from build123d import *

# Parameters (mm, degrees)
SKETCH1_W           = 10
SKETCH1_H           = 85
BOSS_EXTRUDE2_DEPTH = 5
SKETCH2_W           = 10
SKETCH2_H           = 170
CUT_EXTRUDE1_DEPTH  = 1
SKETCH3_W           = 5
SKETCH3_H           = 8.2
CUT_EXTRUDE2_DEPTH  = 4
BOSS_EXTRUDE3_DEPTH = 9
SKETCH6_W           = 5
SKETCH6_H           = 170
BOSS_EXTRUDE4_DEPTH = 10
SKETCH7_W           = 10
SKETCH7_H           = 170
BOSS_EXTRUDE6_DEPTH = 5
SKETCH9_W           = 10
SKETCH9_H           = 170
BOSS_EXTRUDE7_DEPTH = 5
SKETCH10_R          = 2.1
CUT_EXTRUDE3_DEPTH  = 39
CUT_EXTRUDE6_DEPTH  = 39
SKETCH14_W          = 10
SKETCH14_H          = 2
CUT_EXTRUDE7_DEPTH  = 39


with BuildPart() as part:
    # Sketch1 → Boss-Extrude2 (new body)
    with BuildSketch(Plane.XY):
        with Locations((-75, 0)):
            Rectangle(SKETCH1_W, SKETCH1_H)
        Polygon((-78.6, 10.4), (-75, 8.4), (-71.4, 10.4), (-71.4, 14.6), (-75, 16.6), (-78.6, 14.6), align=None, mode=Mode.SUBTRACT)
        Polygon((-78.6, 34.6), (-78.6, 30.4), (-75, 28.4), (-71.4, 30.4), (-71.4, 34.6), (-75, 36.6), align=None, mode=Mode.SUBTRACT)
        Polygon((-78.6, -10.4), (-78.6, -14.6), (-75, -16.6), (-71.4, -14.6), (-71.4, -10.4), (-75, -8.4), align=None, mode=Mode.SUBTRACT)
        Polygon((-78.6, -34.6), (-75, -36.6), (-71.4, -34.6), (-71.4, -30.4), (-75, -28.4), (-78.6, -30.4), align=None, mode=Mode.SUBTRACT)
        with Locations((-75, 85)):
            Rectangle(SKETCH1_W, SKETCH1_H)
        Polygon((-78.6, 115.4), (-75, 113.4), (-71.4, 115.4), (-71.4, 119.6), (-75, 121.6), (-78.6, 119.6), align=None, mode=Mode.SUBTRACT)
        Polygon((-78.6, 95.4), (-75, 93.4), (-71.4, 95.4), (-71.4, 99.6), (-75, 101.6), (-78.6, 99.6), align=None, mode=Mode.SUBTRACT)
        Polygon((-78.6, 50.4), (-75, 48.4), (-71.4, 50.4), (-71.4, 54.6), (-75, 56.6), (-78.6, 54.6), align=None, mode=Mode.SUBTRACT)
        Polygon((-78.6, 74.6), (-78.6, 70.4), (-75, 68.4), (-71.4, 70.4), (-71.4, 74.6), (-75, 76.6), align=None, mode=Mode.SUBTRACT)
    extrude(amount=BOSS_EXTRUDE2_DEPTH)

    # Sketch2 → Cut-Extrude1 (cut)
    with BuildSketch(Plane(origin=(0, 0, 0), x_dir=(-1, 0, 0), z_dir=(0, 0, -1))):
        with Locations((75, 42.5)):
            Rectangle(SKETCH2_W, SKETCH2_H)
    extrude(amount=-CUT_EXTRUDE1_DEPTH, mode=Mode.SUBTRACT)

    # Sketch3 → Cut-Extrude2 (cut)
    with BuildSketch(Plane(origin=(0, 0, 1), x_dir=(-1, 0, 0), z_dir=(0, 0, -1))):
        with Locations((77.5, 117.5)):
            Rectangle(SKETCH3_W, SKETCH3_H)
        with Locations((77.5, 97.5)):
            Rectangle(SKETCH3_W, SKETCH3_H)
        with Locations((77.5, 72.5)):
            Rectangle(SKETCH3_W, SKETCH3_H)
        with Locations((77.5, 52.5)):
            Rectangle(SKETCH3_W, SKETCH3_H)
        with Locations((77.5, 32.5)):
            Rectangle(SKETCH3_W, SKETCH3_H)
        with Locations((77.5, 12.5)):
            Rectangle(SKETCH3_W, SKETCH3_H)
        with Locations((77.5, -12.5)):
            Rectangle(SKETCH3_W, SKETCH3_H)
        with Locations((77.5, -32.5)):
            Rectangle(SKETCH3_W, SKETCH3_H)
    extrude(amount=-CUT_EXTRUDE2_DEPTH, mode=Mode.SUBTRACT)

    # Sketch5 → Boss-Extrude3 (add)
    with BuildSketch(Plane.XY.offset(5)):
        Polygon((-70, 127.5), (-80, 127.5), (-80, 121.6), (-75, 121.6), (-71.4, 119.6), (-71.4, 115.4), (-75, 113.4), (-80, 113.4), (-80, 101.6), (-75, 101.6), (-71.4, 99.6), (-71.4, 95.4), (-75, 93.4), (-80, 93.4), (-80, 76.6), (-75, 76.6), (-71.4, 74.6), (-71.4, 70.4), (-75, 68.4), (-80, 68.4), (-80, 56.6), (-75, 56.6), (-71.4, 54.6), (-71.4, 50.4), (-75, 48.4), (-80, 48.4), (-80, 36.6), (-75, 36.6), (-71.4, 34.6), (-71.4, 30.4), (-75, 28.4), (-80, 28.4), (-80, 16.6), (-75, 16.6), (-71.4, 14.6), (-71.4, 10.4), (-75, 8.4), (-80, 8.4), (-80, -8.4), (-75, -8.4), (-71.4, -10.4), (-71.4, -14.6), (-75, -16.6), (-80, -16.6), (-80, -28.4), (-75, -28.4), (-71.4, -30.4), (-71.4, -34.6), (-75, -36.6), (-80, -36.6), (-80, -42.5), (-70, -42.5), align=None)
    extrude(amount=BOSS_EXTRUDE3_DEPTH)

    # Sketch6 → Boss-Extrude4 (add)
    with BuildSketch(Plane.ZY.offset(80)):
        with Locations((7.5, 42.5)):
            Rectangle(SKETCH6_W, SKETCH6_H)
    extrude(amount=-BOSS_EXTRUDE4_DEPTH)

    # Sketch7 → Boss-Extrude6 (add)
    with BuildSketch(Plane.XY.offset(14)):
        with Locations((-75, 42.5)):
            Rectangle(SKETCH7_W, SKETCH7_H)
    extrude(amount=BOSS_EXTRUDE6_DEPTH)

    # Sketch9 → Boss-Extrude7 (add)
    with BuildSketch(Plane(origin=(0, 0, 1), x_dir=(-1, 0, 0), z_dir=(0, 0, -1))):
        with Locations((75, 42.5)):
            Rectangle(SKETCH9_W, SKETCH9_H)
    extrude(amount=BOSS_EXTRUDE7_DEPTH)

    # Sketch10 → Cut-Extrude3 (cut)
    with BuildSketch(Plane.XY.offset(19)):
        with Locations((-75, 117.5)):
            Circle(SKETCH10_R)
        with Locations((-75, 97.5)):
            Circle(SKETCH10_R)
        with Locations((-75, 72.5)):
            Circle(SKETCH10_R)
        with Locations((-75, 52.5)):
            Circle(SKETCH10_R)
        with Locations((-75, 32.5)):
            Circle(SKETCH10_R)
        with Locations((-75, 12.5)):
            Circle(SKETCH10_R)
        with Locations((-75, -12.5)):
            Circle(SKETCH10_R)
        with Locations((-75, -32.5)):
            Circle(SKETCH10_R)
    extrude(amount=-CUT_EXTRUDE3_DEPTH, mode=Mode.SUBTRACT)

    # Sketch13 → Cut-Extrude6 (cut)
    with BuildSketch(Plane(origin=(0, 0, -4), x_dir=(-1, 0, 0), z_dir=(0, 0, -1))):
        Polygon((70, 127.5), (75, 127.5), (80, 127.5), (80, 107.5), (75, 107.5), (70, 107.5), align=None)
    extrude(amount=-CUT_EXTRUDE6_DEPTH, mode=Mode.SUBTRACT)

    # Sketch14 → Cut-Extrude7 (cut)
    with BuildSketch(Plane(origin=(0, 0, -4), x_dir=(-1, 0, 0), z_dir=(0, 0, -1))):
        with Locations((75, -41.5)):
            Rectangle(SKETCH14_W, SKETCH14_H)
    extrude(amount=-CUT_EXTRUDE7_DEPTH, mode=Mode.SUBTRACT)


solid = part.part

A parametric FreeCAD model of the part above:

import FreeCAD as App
import Part
import Sketcher

doc = App.newDocument("Part")
params = doc.addObject("Spreadsheet::Sheet", "Params")
for row, (alias, value) in enumerate([
    ("sketch1_width", "10 mm"),
    ("sketch1_height", "170 mm"),
    ("sketch1_height2", "4.2 mm"),
    ("pad1_length", "5 mm"),
    ("sketch2_width", "10 mm"),
    ("sketch2_height", "170 mm"),
    ("pocket1_length", "1 mm"),
    ("sketch3_width", "5 mm"),
    ("sketch3_height", "8.2 mm"),
    ("pocket2_length", "4 mm"),
    ("sketch4_width", "10 mm"),
    ("sketch4_width2", "5 mm"),
    ("sketch4_height", "170 mm"),
    ("sketch4_height2", "5.9 mm"),
    ("sketch4_height3", "4.2 mm"),
    ("pad2_length", "9 mm"),
    ("sketch5_width", "170 mm"),
    ("sketch5_height", "5 mm"),
    ("pad3_length", "10 mm"),
    ("sketch6_width", "10 mm"),
    ("sketch6_height", "170 mm"),
    ("pad4_length", "5 mm"),
    ("sketch7_width", "10 mm"),
    ("sketch7_height", "170 mm"),
    ("pad5_length", "5 mm"),
    ("sketch8_diameter", "4.2 mm"),
    ("pocket3_length", "39 mm"),
    ("sketch9_width", "10 mm"),
    ("sketch9_height", "20 mm"),
    ("pocket4_length", "39 mm"),
    ("sketch10_width", "10 mm"),
    ("sketch10_height", "2 mm"),
    ("pocket5_length", "39 mm"),
], start=1):
    params.set(f"A{row}", alias)
    params.set(f"B{row}", "=" + value)
    params.setAlias(f"B{row}", alias)

body = doc.addObject("PartDesign::Body", "Body")

# Sketch on XY plane
sketch1 = body.newObject("Sketcher::SketchObject", "Sketch")
sketch1.AttachmentSupport = (doc.getObject("XY_Plane"), [""])
sketch1.MapMode = "FlatFace"
sketch1.addGeometry([
    Part.LineSegment(App.Vector(-80, -42.5, 0), App.Vector(-70, -42.5, 0)),  # 0
    Part.LineSegment(App.Vector(-70, -42.5, 0), App.Vector(-70, 127.5, 0)),  # 1
    Part.LineSegment(App.Vector(-70, 127.5, 0), App.Vector(-80, 127.5, 0)),  # 2
    Part.LineSegment(App.Vector(-80, 127.5, 0), App.Vector(-80, -42.5, 0)),  # 3
    Part.LineSegment(App.Vector(-75, -36.6, 0), App.Vector(-78.6, -34.6, 0)),  # 4
    Part.LineSegment(App.Vector(-78.6, -34.6, 0), App.Vector(-78.6, -30.4, 0)),  # 5
    Part.LineSegment(App.Vector(-78.6, -30.4, 0), App.Vector(-75, -28.4, 0)),  # 6
    Part.LineSegment(App.Vector(-75, -28.4, 0), App.Vector(-71.4, -30.4, 0)),  # 7
    Part.LineSegment(App.Vector(-71.4, -30.4, 0), App.Vector(-71.4, -34.6, 0)),  # 8
    Part.LineSegment(App.Vector(-71.4, -34.6, 0), App.Vector(-75, -36.6, 0)),  # 9
    Part.LineSegment(App.Vector(-78.6, -14.6, 0), App.Vector(-78.6, -10.4, 0)),  # 10
    Part.LineSegment(App.Vector(-78.6, -10.4, 0), App.Vector(-75, -8.4, 0)),  # 11
    Part.LineSegment(App.Vector(-75, -8.4, 0), App.Vector(-71.4, -10.4, 0)),  # 12
    Part.LineSegment(App.Vector(-71.4, -10.4, 0), App.Vector(-71.4, -14.6, 0)),  # 13
    Part.LineSegment(App.Vector(-71.4, -14.6, 0), App.Vector(-75, -16.6, 0)),  # 14
    Part.LineSegment(App.Vector(-75, -16.6, 0), App.Vector(-78.6, -14.6, 0)),  # 15
    Part.LineSegment(App.Vector(-75, 8.4, 0), App.Vector(-78.6, 10.4, 0)),  # 16
    Part.LineSegment(App.Vector(-78.6, 10.4, 0), App.Vector(-78.6, 14.6, 0)),  # 17
    Part.LineSegment(App.Vector(-78.6, 14.6, 0), App.Vector(-75, 16.6, 0)),  # 18
    Part.LineSegment(App.Vector(-75, 16.6, 0), App.Vector(-71.4, 14.6, 0)),  # 19
    Part.LineSegment(App.Vector(-71.4, 14.6, 0), App.Vector(-71.4, 10.4, 0)),  # 20
    Part.LineSegment(App.Vector(-71.4, 10.4, 0), App.Vector(-75, 8.4, 0)),  # 21
    Part.LineSegment(App.Vector(-78.6, 30.4, 0), App.Vector(-78.6, 34.6, 0)),  # 22
    Part.LineSegment(App.Vector(-78.6, 34.6, 0), App.Vector(-75, 36.6, 0)),  # 23
    Part.LineSegment(App.Vector(-75, 36.6, 0), App.Vector(-71.4, 34.6, 0)),  # 24
    Part.LineSegment(App.Vector(-71.4, 34.6, 0), App.Vector(-71.4, 30.4, 0)),  # 25
    Part.LineSegment(App.Vector(-71.4, 30.4, 0), App.Vector(-75, 28.4, 0)),  # 26
    Part.LineSegment(App.Vector(-75, 28.4, 0), App.Vector(-78.6, 30.4, 0)),  # 27
    Part.LineSegment(App.Vector(-75, 48.4, 0), App.Vector(-78.6, 50.4, 0)),  # 28
    Part.LineSegment(App.Vector(-78.6, 50.4, 0), App.Vector(-78.6, 54.6, 0)),  # 29
    Part.LineSegment(App.Vector(-78.6, 54.6, 0), App.Vector(-75, 56.6, 0)),  # 30
    Part.LineSegment(App.Vector(-75, 56.6, 0), App.Vector(-71.4, 54.6, 0)),  # 31
    Part.LineSegment(App.Vector(-71.4, 54.6, 0), App.Vector(-71.4, 50.4, 0)),  # 32
    Part.LineSegment(App.Vector(-71.4, 50.4, 0), App.Vector(-75, 48.4, 0)),  # 33
    Part.LineSegment(App.Vector(-78.6, 70.4, 0), App.Vector(-78.6, 74.6, 0)),  # 34
    Part.LineSegment(App.Vector(-78.6, 74.6, 0), App.Vector(-75, 76.6, 0)),  # 35
    Part.LineSegment(App.Vector(-75, 76.6, 0), App.Vector(-71.4, 74.6, 0)),  # 36
    Part.LineSegment(App.Vector(-71.4, 74.6, 0), App.Vector(-71.4, 70.4, 0)),  # 37
    Part.LineSegment(App.Vector(-71.4, 70.4, 0), App.Vector(-75, 68.4, 0)),  # 38
    Part.LineSegment(App.Vector(-75, 68.4, 0), App.Vector(-78.6, 70.4, 0)),  # 39
    Part.LineSegment(App.Vector(-75, 93.4, 0), App.Vector(-78.6, 95.4, 0)),  # 40
    Part.LineSegment(App.Vector(-78.6, 95.4, 0), App.Vector(-78.6, 99.6, 0)),  # 41
    Part.LineSegment(App.Vector(-78.6, 99.6, 0), App.Vector(-75, 101.6, 0)),  # 42
    Part.LineSegment(App.Vector(-75, 101.6, 0), App.Vector(-71.4, 99.6, 0)),  # 43
    Part.LineSegment(App.Vector(-71.4, 99.6, 0), App.Vector(-71.4, 95.4, 0)),  # 44
    Part.LineSegment(App.Vector(-71.4, 95.4, 0), App.Vector(-75, 93.4, 0)),  # 45
    Part.LineSegment(App.Vector(-75, 113.4, 0), App.Vector(-78.6, 115.4, 0)),  # 46
    Part.LineSegment(App.Vector(-78.6, 115.4, 0), App.Vector(-78.6, 119.6, 0)),  # 47
    Part.LineSegment(App.Vector(-78.6, 119.6, 0), App.Vector(-75, 121.6, 0)),  # 48
    Part.LineSegment(App.Vector(-75, 121.6, 0), App.Vector(-71.4, 119.6, 0)),  # 49
    Part.LineSegment(App.Vector(-71.4, 119.6, 0), App.Vector(-71.4, 115.4, 0)),  # 50
    Part.LineSegment(App.Vector(-71.4, 115.4, 0), App.Vector(-75, 113.4, 0)),  # 51
], False)
sketch1.addConstraint([
    Sketcher.Constraint("Coincident", 0, 2, 1, 1),
    Sketcher.Constraint("Coincident", 1, 2, 2, 1),
    Sketcher.Constraint("Coincident", 2, 2, 3, 1),
    Sketcher.Constraint("Coincident", 3, 2, 0, 1),
    Sketcher.Constraint("Coincident", 4, 2, 5, 1),
    Sketcher.Constraint("Coincident", 5, 2, 6, 1),
    Sketcher.Constraint("Coincident", 6, 2, 7, 1),
    Sketcher.Constraint("Coincident", 7, 2, 8, 1),
    Sketcher.Constraint("Coincident", 8, 2, 9, 1),
    Sketcher.Constraint("Coincident", 9, 2, 4, 1),
    Sketcher.Constraint("Coincident", 10, 2, 11, 1),
    Sketcher.Constraint("Coincident", 11, 2, 12, 1),
    Sketcher.Constraint("Coincident", 12, 2, 13, 1),
    Sketcher.Constraint("Coincident", 13, 2, 14, 1),
    Sketcher.Constraint("Coincident", 14, 2, 15, 1),
    Sketcher.Constraint("Coincident", 15, 2, 10, 1),
    Sketcher.Constraint("Coincident", 16, 2, 17, 1),
    Sketcher.Constraint("Coincident", 17, 2, 18, 1),
    Sketcher.Constraint("Coincident", 18, 2, 19, 1),
    Sketcher.Constraint("Coincident", 19, 2, 20, 1),
    Sketcher.Constraint("Coincident", 20, 2, 21, 1),
    Sketcher.Constraint("Coincident", 21, 2, 16, 1),
    Sketcher.Constraint("Coincident", 22, 2, 23, 1),
    Sketcher.Constraint("Coincident", 23, 2, 24, 1),
    Sketcher.Constraint("Coincident", 24, 2, 25, 1),
    Sketcher.Constraint("Coincident", 25, 2, 26, 1),
    Sketcher.Constraint("Coincident", 26, 2, 27, 1),
    Sketcher.Constraint("Coincident", 27, 2, 22, 1),
    Sketcher.Constraint("Coincident", 28, 2, 29, 1),
    Sketcher.Constraint("Coincident", 29, 2, 30, 1),
    Sketcher.Constraint("Coincident", 30, 2, 31, 1),
    Sketcher.Constraint("Coincident", 31, 2, 32, 1),
    Sketcher.Constraint("Coincident", 32, 2, 33, 1),
    Sketcher.Constraint("Coincident", 33, 2, 28, 1),
    Sketcher.Constraint("Coincident", 34, 2, 35, 1),
    Sketcher.Constraint("Coincident", 35, 2, 36, 1),
    Sketcher.Constraint("Coincident", 36, 2, 37, 1),
    Sketcher.Constraint("Coincident", 37, 2, 38, 1),
    Sketcher.Constraint("Coincident", 38, 2, 39, 1),
    Sketcher.Constraint("Coincident", 39, 2, 34, 1),
    Sketcher.Constraint("Coincident", 40, 2, 41, 1),
    Sketcher.Constraint("Coincident", 41, 2, 42, 1),
    Sketcher.Constraint("Coincident", 42, 2, 43, 1),
    Sketcher.Constraint("Coincident", 43, 2, 44, 1),
    Sketcher.Constraint("Coincident", 44, 2, 45, 1),
    Sketcher.Constraint("Coincident", 45, 2, 40, 1),
    Sketcher.Constraint("Coincident", 46, 2, 47, 1),
    Sketcher.Constraint("Coincident", 47, 2, 48, 1),
    Sketcher.Constraint("Coincident", 48, 2, 49, 1),
    Sketcher.Constraint("Coincident", 49, 2, 50, 1),
    Sketcher.Constraint("Coincident", 50, 2, 51, 1),
    Sketcher.Constraint("Coincident", 51, 2, 46, 1),
    Sketcher.Constraint("Horizontal", 0),
    Sketcher.Constraint("Vertical", 1),
    Sketcher.Constraint("Horizontal", 2),
    Sketcher.Constraint("Vertical", 3),
    Sketcher.Constraint("Vertical", 5),
    Sketcher.Constraint("Vertical", 8),
    Sketcher.Constraint("Vertical", 10),
    Sketcher.Constraint("Vertical", 13),
    Sketcher.Constraint("Vertical", 17),
    Sketcher.Constraint("Vertical", 20),
    Sketcher.Constraint("Vertical", 22),
    Sketcher.Constraint("Vertical", 25),
    Sketcher.Constraint("Vertical", 29),
    Sketcher.Constraint("Vertical", 32),
    Sketcher.Constraint("Vertical", 34),
    Sketcher.Constraint("Vertical", 37),
    Sketcher.Constraint("Vertical", 41),
    Sketcher.Constraint("Vertical", 44),
    Sketcher.Constraint("Vertical", 47),
    Sketcher.Constraint("Vertical", 50),
    Sketcher.Constraint("Symmetric", 10, 2, 16, 2, -1),
    Sketcher.Constraint("Symmetric", 14, 2, 18, 2, -1),
    Sketcher.Constraint("Symmetric", 13, 2, 19, 2, -1),
    Sketcher.Constraint("Symmetric", 11, 2, 21, 2, -1),
    Sketcher.Constraint("Symmetric", 4, 2, 22, 2, -1),
    Sketcher.Constraint("Symmetric", 9, 2, 23, 2, -1),
    Sketcher.Constraint("Symmetric", 8, 2, 24, 2, -1),
    Sketcher.Constraint("Symmetric", 6, 2, 26, 2, -1),
    Sketcher.Constraint("Parallel", 4, 7),
    Sketcher.Constraint("Parallel", 6, 9),
    Sketcher.Constraint("Parallel", 9, 11),
    Sketcher.Constraint("Parallel", 7, 12),
    Sketcher.Constraint("Parallel", 11, 14),
    Sketcher.Constraint("Parallel", 12, 15),
    Sketcher.Constraint("Parallel", 15, 16),
    Sketcher.Constraint("Parallel", 14, 18),
    Sketcher.Constraint("Parallel", 18, 21),
    Sketcher.Constraint("Parallel", 23, 26),
    Sketcher.Constraint("Parallel", 24, 27),
    Sketcher.Constraint("Parallel", 27, 28),
    Sketcher.Constraint("Parallel", 26, 30),
    Sketcher.Constraint("Parallel", 28, 31),
    Sketcher.Constraint("Parallel", 30, 33),
    Sketcher.Constraint("Parallel", 33, 35),
    Sketcher.Constraint("Parallel", 31, 36),
    Sketcher.Constraint("Parallel", 35, 38),
    Sketcher.Constraint("Parallel", 36, 39),
    Sketcher.Constraint("Parallel", 39, 40),
    Sketcher.Constraint("Parallel", 38, 42),
    Sketcher.Constraint("Parallel", 40, 43),
    Sketcher.Constraint("Parallel", 42, 45),
    Sketcher.Constraint("Parallel", 43, 46),
    Sketcher.Constraint("Parallel", 45, 48),
    Sketcher.Constraint("Parallel", 46, 49),
    Sketcher.Constraint("Parallel", 48, 51),
    Sketcher.Constraint("Horizontal", 5, 2, 7, 2),
    Sketcher.Constraint("Horizontal", 4, 2, 8, 2),
    Sketcher.Constraint("Horizontal", 10, 2, 12, 2),
    Sketcher.Constraint("Horizontal", 13, 2, 15, 2),
    Sketcher.Constraint("Horizontal", 29, 2, 31, 2),
    Sketcher.Constraint("Horizontal", 28, 2, 32, 2),
    Sketcher.Constraint("Horizontal", 34, 2, 36, 2),
    Sketcher.Constraint("Horizontal", 37, 2, 39, 2),
    Sketcher.Constraint("Horizontal", 41, 2, 43, 2),
    Sketcher.Constraint("Horizontal", 40, 2, 44, 2),
    Sketcher.Constraint("Horizontal", 47, 2, 49, 2),
    Sketcher.Constraint("Horizontal", 46, 2, 50, 2),
    Sketcher.Constraint("Vertical", 5, 2, 10, 2),
    Sketcher.Constraint("Vertical", 9, 2, 11, 2),
    Sketcher.Constraint("Vertical", 27, 2, 28, 2),
    Sketcher.Constraint("Vertical", 26, 2, 30, 2),
    Sketcher.Constraint("Vertical", 29, 2, 34, 2),
    Sketcher.Constraint("Vertical", 33, 2, 35, 2),
    Sketcher.Constraint("Vertical", 39, 2, 40, 2),
    Sketcher.Constraint("Vertical", 38, 2, 42, 2),
    Sketcher.Constraint("Vertical", 41, 2, 46, 2),
    Sketcher.Constraint("Vertical", 45, 2, 48, 2),
    Sketcher.Constraint("Equal", 8, 10),
    Sketcher.Constraint("Equal", 25, 29),
    Sketcher.Constraint("Equal", 32, 34),
    Sketcher.Constraint("Equal", 37, 41),
    Sketcher.Constraint("Equal", 44, 47),
    Sketcher.Constraint("DistanceX", 0, 1, 0, 2, 10.0),
    Sketcher.Constraint("DistanceY", 1, 1, 1, 2, 170.0),
    Sketcher.Constraint("DistanceY", 5, 1, 5, 2, 4.2),
    Sketcher.Constraint("DistanceX", 0, 2, -1, 1, 70.0),
    Sketcher.Constraint("DistanceX", 6, 2, -1, 1, 75.0),
    Sketcher.Constraint("DistanceY", 5, 2, 6, 2, 2.0),
    Sketcher.Constraint("DistanceY", 6, 2, 10, 2, 18.0),
    Sketcher.Constraint("DistanceY", 15, 2, 16, 2, 25.0),
    Sketcher.Constraint("DistanceY", 27, 2, 28, 2, 20.0),
    Sketcher.Constraint("DistanceY", 30, 2, 34, 2, 18.0),
    Sketcher.Constraint("DistanceY", 39, 2, 40, 2, 25.0),
    Sketcher.Constraint("DistanceY", 42, 2, 47, 2, 18.0),
    Sketcher.Constraint("DistanceY", 0, 2, -1, 1, 42.5),
    Sketcher.Constraint("DistanceX", 4, 2, -1, 1, 78.6),
])
sketch1.setExpression("Constraints[134]", "Params.sketch1_width")
sketch1.setExpression("Constraints[135]", "Params.sketch1_height")
sketch1.setExpression("Constraints[136]", "Params.sketch1_height2")
pad1 = body.newObject("PartDesign::Pad", "Pad")
pad1.Profile = sketch1
pad1.setExpression("Length", "Params.pad1_length")

# Sketch on XY plane
sketch2 = body.newObject("Sketcher::SketchObject", "Sketch001")
sketch2.AttachmentSupport = (doc.getObject("XY_Plane"), [""])
sketch2.MapMode = "FlatFace"
sketch2.addGeometry([
    Part.LineSegment(App.Vector(-70, 128, 0), App.Vector(-70, -42, 0)),
    Part.LineSegment(App.Vector(-70, -42, 0), App.Vector(-80, -42, 0)),
    Part.LineSegment(App.Vector(-80, -42, 0), App.Vector(-80, 128, 0)),
    Part.LineSegment(App.Vector(-80, 128, 0), App.Vector(-70, 128, 0)),
], False)
sketch2.addConstraint([
    Sketcher.Constraint("Coincident", 0, 2, 1, 1),
    Sketcher.Constraint("Coincident", 1, 2, 2, 1),
    Sketcher.Constraint("Coincident", 2, 2, 3, 1),
    Sketcher.Constraint("Coincident", 3, 2, 0, 1),
    Sketcher.Constraint("Vertical", 0),
    Sketcher.Constraint("Horizontal", 1),
    Sketcher.Constraint("Vertical", 2),
    Sketcher.Constraint("Horizontal", 3),
    Sketcher.Constraint("DistanceX", 1, 2, 1, 1, 10.0),
    Sketcher.Constraint("DistanceY", 0, 2, 0, 1, 170.0),
    Sketcher.Constraint("DistanceX", 0, 2, -1, 1, 70.0),
    Sketcher.Constraint("DistanceY", 0, 2, -1, 1, 42.5),
])
sketch2.setExpression("Constraints[8]", "Params.sketch2_width")
sketch2.setExpression("Constraints[9]", "Params.sketch2_height")
pocket1 = body.newObject("PartDesign::Pocket", "Pocket")
pocket1.Profile = sketch2
pocket1.setExpression("Length", "Params.pocket1_length")
pocket1.Reversed = True

# Sketch on XY plane
sketch3 = body.newObject("Sketcher::SketchObject", "Sketch002")
sketch3.AttachmentSupport = (doc.getObject("XY_Plane"), [""])
sketch3.MapMode = "FlatFace"
sketch3.AttachmentOffset = App.Placement(App.Vector(0, 0, 1), App.Rotation())
sketch3.addGeometry([
    Part.LineSegment(App.Vector(-75, 122, 0), App.Vector(-75, 113, 0)),  # 0
    Part.LineSegment(App.Vector(-75, 113, 0), App.Vector(-80, 113, 0)),  # 1
    Part.LineSegment(App.Vector(-80, 113, 0), App.Vector(-80, 122, 0)),  # 2
    Part.LineSegment(App.Vector(-80, 122, 0), App.Vector(-75, 122, 0)),  # 3
    Part.LineSegment(App.Vector(-75, 102, 0), App.Vector(-75, 93, 0)),  # 4
    Part.LineSegment(App.Vector(-75, 93, 0), App.Vector(-80, 93, 0)),  # 5
    Part.LineSegment(App.Vector(-80, 93, 0), App.Vector(-80, 102, 0)),  # 6
    Part.LineSegment(App.Vector(-80, 102, 0), App.Vector(-75, 102, 0)),  # 7
    Part.LineSegment(App.Vector(-75, 77, 0), App.Vector(-75, 68, 0)),  # 8
    Part.LineSegment(App.Vector(-75, 68, 0), App.Vector(-80, 68, 0)),  # 9
    Part.LineSegment(App.Vector(-80, 68, 0), App.Vector(-80, 77, 0)),  # 10
    Part.LineSegment(App.Vector(-80, 77, 0), App.Vector(-75, 77, 0)),  # 11
    Part.LineSegment(App.Vector(-75, 57, 0), App.Vector(-75, 48, 0)),  # 12
    Part.LineSegment(App.Vector(-75, 48, 0), App.Vector(-80, 48, 0)),  # 13
    Part.LineSegment(App.Vector(-80, 48, 0), App.Vector(-80, 57, 0)),  # 14
    Part.LineSegment(App.Vector(-80, 57, 0), App.Vector(-75, 57, 0)),  # 15
    Part.LineSegment(App.Vector(-75, 37, 0), App.Vector(-75, 28, 0)),  # 16
    Part.LineSegment(App.Vector(-75, 28, 0), App.Vector(-80, 28, 0)),  # 17
    Part.LineSegment(App.Vector(-80, 28, 0), App.Vector(-80, 37, 0)),  # 18
    Part.LineSegment(App.Vector(-80, 37, 0), App.Vector(-75, 37, 0)),  # 19
    Part.LineSegment(App.Vector(-75, 17, 0), App.Vector(-75, 8, 0)),  # 20
    Part.LineSegment(App.Vector(-75, 8, 0), App.Vector(-80, 8, 0)),  # 21
    Part.LineSegment(App.Vector(-80, 8, 0), App.Vector(-80, 17, 0)),  # 22
    Part.LineSegment(App.Vector(-80, 17, 0), App.Vector(-75, 17, 0)),  # 23
    Part.LineSegment(App.Vector(-75, -8, 0), App.Vector(-75, -17, 0)),  # 24
    Part.LineSegment(App.Vector(-75, -17, 0), App.Vector(-80, -17, 0)),  # 25
    Part.LineSegment(App.Vector(-80, -17, 0), App.Vector(-80, -8, 0)),  # 26
    Part.LineSegment(App.Vector(-80, -8, 0), App.Vector(-75, -8, 0)),  # 27
    Part.LineSegment(App.Vector(-75, -28, 0), App.Vector(-75, -37, 0)),  # 28
    Part.LineSegment(App.Vector(-75, -37, 0), App.Vector(-80, -37, 0)),  # 29
    Part.LineSegment(App.Vector(-80, -37, 0), App.Vector(-80, -28, 0)),  # 30
    Part.LineSegment(App.Vector(-80, -28, 0), App.Vector(-75, -28, 0)),  # 31
], False)
sketch3.addConstraint([
    Sketcher.Constraint("Coincident", 0, 2, 1, 1),
    Sketcher.Constraint("Coincident", 1, 2, 2, 1),
    Sketcher.Constraint("Coincident", 2, 2, 3, 1),
    Sketcher.Constraint("Coincident", 3, 2, 0, 1),
    Sketcher.Constraint("Coincident", 4, 2, 5, 1),
    Sketcher.Constraint("Coincident", 5, 2, 6, 1),
    Sketcher.Constraint("Coincident", 6, 2, 7, 1),
    Sketcher.Constraint("Coincident", 7, 2, 4, 1),
    Sketcher.Constraint("Coincident", 8, 2, 9, 1),
    Sketcher.Constraint("Coincident", 9, 2, 10, 1),
    Sketcher.Constraint("Coincident", 10, 2, 11, 1),
    Sketcher.Constraint("Coincident", 11, 2, 8, 1),
    Sketcher.Constraint("Coincident", 12, 2, 13, 1),
    Sketcher.Constraint("Coincident", 13, 2, 14, 1),
    Sketcher.Constraint("Coincident", 14, 2, 15, 1),
    Sketcher.Constraint("Coincident", 15, 2, 12, 1),
    Sketcher.Constraint("Coincident", 16, 2, 17, 1),
    Sketcher.Constraint("Coincident", 17, 2, 18, 1),
    Sketcher.Constraint("Coincident", 18, 2, 19, 1),
    Sketcher.Constraint("Coincident", 19, 2, 16, 1),
    Sketcher.Constraint("Coincident", 20, 2, 21, 1),
    Sketcher.Constraint("Coincident", 21, 2, 22, 1),
    Sketcher.Constraint("Coincident", 22, 2, 23, 1),
    Sketcher.Constraint("Coincident", 23, 2, 20, 1),
    Sketcher.Constraint("Coincident", 24, 2, 25, 1),
    Sketcher.Constraint("Coincident", 25, 2, 26, 1),
    Sketcher.Constraint("Coincident", 26, 2, 27, 1),
    Sketcher.Constraint("Coincident", 27, 2, 24, 1),
    Sketcher.Constraint("Coincident", 28, 2, 29, 1),
    Sketcher.Constraint("Coincident", 29, 2, 30, 1),
    Sketcher.Constraint("Coincident", 30, 2, 31, 1),
    Sketcher.Constraint("Coincident", 31, 2, 28, 1),
    Sketcher.Constraint("Vertical", 0),
    Sketcher.Constraint("Horizontal", 1),
    Sketcher.Constraint("Vertical", 2),
    Sketcher.Constraint("Horizontal", 3),
    Sketcher.Constraint("Vertical", 4),
    Sketcher.Constraint("Horizontal", 5),
    Sketcher.Constraint("Vertical", 6),
    Sketcher.Constraint("Horizontal", 7),
    Sketcher.Constraint("Vertical", 8),
    Sketcher.Constraint("Horizontal", 9),
    Sketcher.Constraint("Vertical", 10),
    Sketcher.Constraint("Horizontal", 11),
    Sketcher.Constraint("Vertical", 12),
    Sketcher.Constraint("Horizontal", 13),
    Sketcher.Constraint("Vertical", 14),
    Sketcher.Constraint("Horizontal", 15),
    Sketcher.Constraint("Vertical", 16),
    Sketcher.Constraint("Horizontal", 17),
    Sketcher.Constraint("Vertical", 18),
    Sketcher.Constraint("Horizontal", 19),
    Sketcher.Constraint("Vertical", 20),
    Sketcher.Constraint("Horizontal", 21),
    Sketcher.Constraint("Vertical", 22),
    Sketcher.Constraint("Horizontal", 23),
    Sketcher.Constraint("Vertical", 24),
    Sketcher.Constraint("Horizontal", 25),
    Sketcher.Constraint("Vertical", 26),
    Sketcher.Constraint("Horizontal", 27),
    Sketcher.Constraint("Vertical", 28),
    Sketcher.Constraint("Horizontal", 29),
    Sketcher.Constraint("Vertical", 30),
    Sketcher.Constraint("Horizontal", 31),
    Sketcher.Constraint("Symmetric", 23, 2, 24, 2, -1),
    Sketcher.Constraint("Symmetric", 21, 2, 26, 2, -1),
    Sketcher.Constraint("Symmetric", 19, 2, 28, 2, -1),
    Sketcher.Constraint("Symmetric", 17, 2, 30, 2, -1),
    Sketcher.Constraint("Vertical", 3, 2, 4, 2),
    Sketcher.Constraint("Vertical", 2, 2, 5, 2),
    Sketcher.Constraint("Vertical", 7, 2, 8, 2),
    Sketcher.Constraint("Vertical", 6, 2, 9, 2),
    Sketcher.Constraint("Vertical", 11, 2, 12, 2),
    Sketcher.Constraint("Vertical", 10, 2, 13, 2),
    Sketcher.Constraint("Vertical", 15, 2, 16, 2),
    Sketcher.Constraint("Vertical", 14, 2, 17, 2),
    Sketcher.Constraint("Vertical", 19, 2, 20, 2),
    Sketcher.Constraint("Vertical", 18, 2, 21, 2),
    Sketcher.Constraint("Equal", 2, 4),
    Sketcher.Constraint("Equal", 6, 8),
    Sketcher.Constraint("Equal", 10, 12),
    Sketcher.Constraint("Equal", 14, 16),
    Sketcher.Constraint("Equal", 18, 20),
    Sketcher.Constraint("DistanceX", 1, 2, 1, 1, 5.0),
    Sketcher.Constraint("DistanceY", 0, 2, 0, 1, 8.2),
    Sketcher.Constraint("DistanceX", 0, 2, -1, 1, 75.0),
    Sketcher.Constraint("DistanceY", 4, 2, 0, 2, 20.0),
    Sketcher.Constraint("DistanceY", 8, 2, 4, 2, 25.0),
    Sketcher.Constraint("DistanceY", 12, 2, 8, 2, 20.0),
    Sketcher.Constraint("DistanceY", 16, 2, 12, 2, 20.0),
    Sketcher.Constraint("DistanceY", 20, 2, 16, 2, 20.0),
    Sketcher.Constraint("DistanceY", 24, 2, 20, 2, 25.0),
])
sketch3.setExpression("Constraints[83]", "Params.sketch3_width")
sketch3.setExpression("Constraints[84]", "Params.sketch3_height")
pocket2 = body.newObject("PartDesign::Pocket", "Pocket001")
pocket2.Profile = sketch3
pocket2.setExpression("Length", "Params.pocket2_length")
pocket2.Reversed = True

# Sketch on XY plane
sketch4 = body.newObject("Sketcher::SketchObject", "Sketch003")
sketch4.AttachmentSupport = (doc.getObject("XY_Plane"), [""])
sketch4.MapMode = "FlatFace"
sketch4.AttachmentOffset = App.Placement(App.Vector(0, 0, 5), App.Rotation())
sketch4.addGeometry([
    Part.LineSegment(App.Vector(-70, 127.5, 0), App.Vector(-80, 127.5, 0)),  # 0
    Part.LineSegment(App.Vector(-80, 127.5, 0), App.Vector(-80, 121.6, 0)),  # 1
    Part.LineSegment(App.Vector(-80, 121.6, 0), App.Vector(-75, 121.6, 0)),  # 2
    Part.LineSegment(App.Vector(-75, 121.6, 0), App.Vector(-71.4, 119.6, 0)),  # 3
    Part.LineSegment(App.Vector(-71.4, 119.6, 0), App.Vector(-71.4, 115.4, 0)),  # 4
    Part.LineSegment(App.Vector(-71.4, 115.4, 0), App.Vector(-75, 113.4, 0)),  # 5
    Part.LineSegment(App.Vector(-75, 113.4, 0), App.Vector(-80, 113.4, 0)),  # 6
    Part.LineSegment(App.Vector(-80, 113.4, 0), App.Vector(-80, 101.6, 0)),  # 7
    Part.LineSegment(App.Vector(-80, 101.6, 0), App.Vector(-75, 101.6, 0)),  # 8
    Part.LineSegment(App.Vector(-75, 101.6, 0), App.Vector(-71.4, 99.6, 0)),  # 9
    Part.LineSegment(App.Vector(-71.4, 99.6, 0), App.Vector(-71.4, 95.4, 0)),  # 10
    Part.LineSegment(App.Vector(-71.4, 95.4, 0), App.Vector(-75, 93.4, 0)),  # 11
    Part.LineSegment(App.Vector(-75, 93.4, 0), App.Vector(-80, 93.4, 0)),  # 12
    Part.LineSegment(App.Vector(-80, 93.4, 0), App.Vector(-80, 76.6, 0)),  # 13
    Part.LineSegment(App.Vector(-80, 76.6, 0), App.Vector(-75, 76.6, 0)),  # 14
    Part.LineSegment(App.Vector(-75, 76.6, 0), App.Vector(-71.4, 74.6, 0)),  # 15
    Part.LineSegment(App.Vector(-71.4, 74.6, 0), App.Vector(-71.4, 70.4, 0)),  # 16
    Part.LineSegment(App.Vector(-71.4, 70.4, 0), App.Vector(-75, 68.4, 0)),  # 17
    Part.LineSegment(App.Vector(-75, 68.4, 0), App.Vector(-80, 68.4, 0)),  # 18
    Part.LineSegment(App.Vector(-80, 68.4, 0), App.Vector(-80, 56.6, 0)),  # 19
    Part.LineSegment(App.Vector(-80, 56.6, 0), App.Vector(-75, 56.6, 0)),  # 20
    Part.LineSegment(App.Vector(-75, 56.6, 0), App.Vector(-71.4, 54.6, 0)),  # 21
    Part.LineSegment(App.Vector(-71.4, 54.6, 0), App.Vector(-71.4, 50.4, 0)),  # 22
    Part.LineSegment(App.Vector(-71.4, 50.4, 0), App.Vector(-75, 48.4, 0)),  # 23
    Part.LineSegment(App.Vector(-75, 48.4, 0), App.Vector(-80, 48.4, 0)),  # 24
    Part.LineSegment(App.Vector(-80, 48.4, 0), App.Vector(-80, 36.6, 0)),  # 25
    Part.LineSegment(App.Vector(-80, 36.6, 0), App.Vector(-75, 36.6, 0)),  # 26
    Part.LineSegment(App.Vector(-75, 36.6, 0), App.Vector(-71.4, 34.6, 0)),  # 27
    Part.LineSegment(App.Vector(-71.4, 34.6, 0), App.Vector(-71.4, 30.4, 0)),  # 28
    Part.LineSegment(App.Vector(-71.4, 30.4, 0), App.Vector(-75, 28.4, 0)),  # 29
    Part.LineSegment(App.Vector(-75, 28.4, 0), App.Vector(-80, 28.4, 0)),  # 30
    Part.LineSegment(App.Vector(-80, 28.4, 0), App.Vector(-80, 16.6, 0)),  # 31
    Part.LineSegment(App.Vector(-80, 16.6, 0), App.Vector(-75, 16.6, 0)),  # 32
    Part.LineSegment(App.Vector(-75, 16.6, 0), App.Vector(-71.4, 14.6, 0)),  # 33
    Part.LineSegment(App.Vector(-71.4, 14.6, 0), App.Vector(-71.4, 10.4, 0)),  # 34
    Part.LineSegment(App.Vector(-71.4, 10.4, 0), App.Vector(-75, 8.4, 0)),  # 35
    Part.LineSegment(App.Vector(-75, 8.4, 0), App.Vector(-80, 8.4, 0)),  # 36
    Part.LineSegment(App.Vector(-80, 8.4, 0), App.Vector(-80, -8.4, 0)),  # 37
    Part.LineSegment(App.Vector(-80, -8.4, 0), App.Vector(-75, -8.4, 0)),  # 38
    Part.LineSegment(App.Vector(-75, -8.4, 0), App.Vector(-71.4, -10.4, 0)),  # 39
    Part.LineSegment(App.Vector(-71.4, -10.4, 0), App.Vector(-71.4, -14.6, 0)),  # 40
    Part.LineSegment(App.Vector(-71.4, -14.6, 0), App.Vector(-75, -16.6, 0)),  # 41
    Part.LineSegment(App.Vector(-75, -16.6, 0), App.Vector(-80, -16.6, 0)),  # 42
    Part.LineSegment(App.Vector(-80, -16.6, 0), App.Vector(-80, -28.4, 0)),  # 43
    Part.LineSegment(App.Vector(-80, -28.4, 0), App.Vector(-75, -28.4, 0)),  # 44
    Part.LineSegment(App.Vector(-75, -28.4, 0), App.Vector(-71.4, -30.4, 0)),  # 45
    Part.LineSegment(App.Vector(-71.4, -30.4, 0), App.Vector(-71.4, -34.6, 0)),  # 46
    Part.LineSegment(App.Vector(-71.4, -34.6, 0), App.Vector(-75, -36.6, 0)),  # 47
    Part.LineSegment(App.Vector(-75, -36.6, 0), App.Vector(-80, -36.6, 0)),  # 48
    Part.LineSegment(App.Vector(-80, -36.6, 0), App.Vector(-80, -42.5, 0)),  # 49
    Part.LineSegment(App.Vector(-80, -42.5, 0), App.Vector(-70, -42.5, 0)),  # 50
    Part.LineSegment(App.Vector(-70, -42.5, 0), App.Vector(-70, 127.5, 0)),  # 51
], False)
sketch4.addConstraint([
    Sketcher.Constraint("Coincident", 0, 2, 1, 1),
    Sketcher.Constraint("Coincident", 1, 2, 2, 1),
    Sketcher.Constraint("Coincident", 2, 2, 3, 1),
    Sketcher.Constraint("Coincident", 3, 2, 4, 1),
    Sketcher.Constraint("Coincident", 4, 2, 5, 1),
    Sketcher.Constraint("Coincident", 5, 2, 6, 1),
    Sketcher.Constraint("Coincident", 6, 2, 7, 1),
    Sketcher.Constraint("Coincident", 7, 2, 8, 1),
    Sketcher.Constraint("Coincident", 8, 2, 9, 1),
    Sketcher.Constraint("Coincident", 9, 2, 10, 1),
    Sketcher.Constraint("Coincident", 10, 2, 11, 1),
    Sketcher.Constraint("Coincident", 11, 2, 12, 1),
    Sketcher.Constraint("Coincident", 12, 2, 13, 1),
    Sketcher.Constraint("Coincident", 13, 2, 14, 1),
    Sketcher.Constraint("Coincident", 14, 2, 15, 1),
    Sketcher.Constraint("Coincident", 15, 2, 16, 1),
    Sketcher.Constraint("Coincident", 16, 2, 17, 1),
    Sketcher.Constraint("Coincident", 17, 2, 18, 1),
    Sketcher.Constraint("Coincident", 18, 2, 19, 1),
    Sketcher.Constraint("Coincident", 19, 2, 20, 1),
    Sketcher.Constraint("Coincident", 20, 2, 21, 1),
    Sketcher.Constraint("Coincident", 21, 2, 22, 1),
    Sketcher.Constraint("Coincident", 22, 2, 23, 1),
    Sketcher.Constraint("Coincident", 23, 2, 24, 1),
    Sketcher.Constraint("Coincident", 24, 2, 25, 1),
    Sketcher.Constraint("Coincident", 25, 2, 26, 1),
    Sketcher.Constraint("Coincident", 26, 2, 27, 1),
    Sketcher.Constraint("Coincident", 27, 2, 28, 1),
    Sketcher.Constraint("Coincident", 28, 2, 29, 1),
    Sketcher.Constraint("Coincident", 29, 2, 30, 1),
    Sketcher.Constraint("Coincident", 30, 2, 31, 1),
    Sketcher.Constraint("Coincident", 31, 2, 32, 1),
    Sketcher.Constraint("Coincident", 32, 2, 33, 1),
    Sketcher.Constraint("Coincident", 33, 2, 34, 1),
    Sketcher.Constraint("Coincident", 34, 2, 35, 1),
    Sketcher.Constraint("Coincident", 35, 2, 36, 1),
    Sketcher.Constraint("Coincident", 36, 2, 37, 1),
    Sketcher.Constraint("Coincident", 37, 2, 38, 1),
    Sketcher.Constraint("Coincident", 38, 2, 39, 1),
    Sketcher.Constraint("Coincident", 39, 2, 40, 1),
    Sketcher.Constraint("Coincident", 40, 2, 41, 1),
    Sketcher.Constraint("Coincident", 41, 2, 42, 1),
    Sketcher.Constraint("Coincident", 42, 2, 43, 1),
    Sketcher.Constraint("Coincident", 43, 2, 44, 1),
    Sketcher.Constraint("Coincident", 44, 2, 45, 1),
    Sketcher.Constraint("Coincident", 45, 2, 46, 1),
    Sketcher.Constraint("Coincident", 46, 2, 47, 1),
    Sketcher.Constraint("Coincident", 47, 2, 48, 1),
    Sketcher.Constraint("Coincident", 48, 2, 49, 1),
    Sketcher.Constraint("Coincident", 49, 2, 50, 1),
    Sketcher.Constraint("Coincident", 50, 2, 51, 1),
    Sketcher.Constraint("Coincident", 51, 2, 0, 1),
    Sketcher.Constraint("Horizontal", 0),
    Sketcher.Constraint("Vertical", 1),
    Sketcher.Constraint("Horizontal", 2),
    Sketcher.Constraint("Vertical", 4),
    Sketcher.Constraint("Horizontal", 6),
    Sketcher.Constraint("Vertical", 7),
    Sketcher.Constraint("Horizontal", 8),
    Sketcher.Constraint("Vertical", 10),
    Sketcher.Constraint("Horizontal", 12),
    Sketcher.Constraint("Vertical", 13),
    Sketcher.Constraint("Horizontal", 14),
    Sketcher.Constraint("Vertical", 16),
    Sketcher.Constraint("Horizontal", 18),
    Sketcher.Constraint("Vertical", 19),
    Sketcher.Constraint("Horizontal", 20),
    Sketcher.Constraint("Vertical", 22),
    Sketcher.Constraint("Horizontal", 24),
    Sketcher.Constraint("Vertical", 25),
    Sketcher.Constraint("Horizontal", 26),
    Sketcher.Constraint("Vertical", 28),
    Sketcher.Constraint("Horizontal", 30),
    Sketcher.Constraint("Vertical", 31),
    Sketcher.Constraint("Horizontal", 32),
    Sketcher.Constraint("Vertical", 34),
    Sketcher.Constraint("Horizontal", 36),
    Sketcher.Constraint("Vertical", 37),
    Sketcher.Constraint("Horizontal", 38),
    Sketcher.Constraint("Vertical", 40),
    Sketcher.Constraint("Horizontal", 42),
    Sketcher.Constraint("Vertical", 43),
    Sketcher.Constraint("Horizontal", 44),
    Sketcher.Constraint("Vertical", 46),
    Sketcher.Constraint("Horizontal", 48),
    Sketcher.Constraint("Vertical", 49),
    Sketcher.Constraint("Horizontal", 50),
    Sketcher.Constraint("Vertical", 51),
    Sketcher.Constraint("Symmetric", 35, 2, 38, 2, -1),
    Sketcher.Constraint("Symmetric", 34, 2, 39, 2, -1),
    Sketcher.Constraint("Symmetric", 32, 2, 41, 2, -1),
    Sketcher.Constraint("Symmetric", 30, 2, 43, 2, -1),
    Sketcher.Constraint("Symmetric", 28, 2, 45, 2, -1),
    Sketcher.Constraint("Symmetric", 26, 2, 47, 2, -1),
    Sketcher.Constraint("Parallel", 3, 9),
    Sketcher.Constraint("Parallel", 5, 11),
    Sketcher.Constraint("Parallel", 9, 15),
    Sketcher.Constraint("Parallel", 11, 17),
    Sketcher.Constraint("Parallel", 15, 21),
    Sketcher.Constraint("Parallel", 17, 23),
    Sketcher.Constraint("Parallel", 21, 27),
    Sketcher.Constraint("Parallel", 23, 29),
    Sketcher.Constraint("Parallel", 27, 33),
    Sketcher.Constraint("Parallel", 29, 35),
    Sketcher.Constraint("Parallel", 33, 39),
    Sketcher.Constraint("Parallel", 35, 41),
    Sketcher.Constraint("Parallel", 39, 45),
    Sketcher.Constraint("Parallel", 41, 47),
    Sketcher.Constraint("Vertical", 2, 2, 5, 2),
    Sketcher.Constraint("Vertical", 1, 2, 6, 2),
    Sketcher.Constraint("Vertical", 5, 2, 8, 2),
    Sketcher.Constraint("Vertical", 4, 2, 9, 2),
    Sketcher.Constraint("Vertical", 8, 2, 11, 2),
    Sketcher.Constraint("Vertical", 7, 2, 12, 2),
    Sketcher.Constraint("Vertical", 11, 2, 14, 2),
    Sketcher.Constraint("Vertical", 10, 2, 15, 2),
    Sketcher.Constraint("Vertical", 14, 2, 17, 2),
    Sketcher.Constraint("Vertical", 13, 2, 18, 2),
    Sketcher.Constraint("Vertical", 17, 2, 20, 2),
    Sketcher.Constraint("Vertical", 16, 2, 21, 2),
    Sketcher.Constraint("Vertical", 20, 2, 23, 2),
    Sketcher.Constraint("Vertical", 19, 2, 24, 2),
    Sketcher.Constraint("Vertical", 23, 2, 26, 2),
    Sketcher.Constraint("Vertical", 22, 2, 27, 2),
    Sketcher.Constraint("Vertical", 26, 2, 29, 2),
    Sketcher.Constraint("Vertical", 25, 2, 30, 2),
    Sketcher.Constraint("Vertical", 29, 2, 32, 2),
    Sketcher.Constraint("Vertical", 28, 2, 33, 2),
    Sketcher.Constraint("Vertical", 32, 2, 35, 2),
    Sketcher.Constraint("Vertical", 31, 2, 36, 2),
    Sketcher.Constraint("Vertical", 43, 2, 48, 2),
    Sketcher.Constraint("Equal", 4, 10),
    Sketcher.Constraint("Equal", 10, 16),
    Sketcher.Constraint("Equal", 7, 19),
    Sketcher.Constraint("Equal", 16, 22),
    Sketcher.Constraint("Equal", 19, 25),
    Sketcher.Constraint("Equal", 22, 28),
    Sketcher.Constraint("Equal", 25, 31),
    Sketcher.Constraint("Equal", 28, 34),
    Sketcher.Constraint("Equal", 13, 37),
    Sketcher.Constraint("Equal", 1, 49),
    Sketcher.Constraint("DistanceX", 0, 2, 0, 1, 10.0),
    Sketcher.Constraint("DistanceX", 2, 1, 2, 2, 5.0),
    Sketcher.Constraint("DistanceY", 51, 1, 51, 2, 170.0),
    Sketcher.Constraint("DistanceY", 1, 2, 1, 1, 5.9),
    Sketcher.Constraint("DistanceY", 4, 2, 4, 1, 4.2),
    Sketcher.Constraint("DistanceY", 7, 2, 7, 1, 11.8),
    Sketcher.Constraint("DistanceY", 13, 2, 13, 1, 16.8),
    Sketcher.Constraint("DistanceX", 0, 2, -1, 1, 80.0),
    Sketcher.Constraint("DistanceX", 3, 2, -1, 1, 71.4),
])
sketch4.setExpression("Constraints[141]", "Params.sketch4_width")
sketch4.setExpression("Constraints[142]", "Params.sketch4_width2")
sketch4.setExpression("Constraints[143]", "Params.sketch4_height")
sketch4.setExpression("Constraints[144]", "Params.sketch4_height2")
sketch4.setExpression("Constraints[145]", "Params.sketch4_height3")
pad2 = body.newObject("PartDesign::Pad", "Pad001")
pad2.Profile = sketch4
pad2.setExpression("Length", "Params.pad2_length")

# Sketch on YZ plane
sketch5 = body.newObject("Sketcher::SketchObject", "Sketch004")
sketch5.AttachmentSupport = (doc.getObject("YZ_Plane"), [""])
sketch5.MapMode = "FlatFace"
sketch5.AttachmentOffset = App.Placement(App.Vector(0, 0, -80), App.Rotation())
sketch5.addGeometry([
    Part.LineSegment(App.Vector(128, 5, 0), App.Vector(-42, 5, 0)),
    Part.LineSegment(App.Vector(-42, 5, 0), App.Vector(-42, 10, 0)),
    Part.LineSegment(App.Vector(-42, 10, 0), App.Vector(128, 10, 0)),
    Part.LineSegment(App.Vector(128, 10, 0), App.Vector(128, 5, 0)),
], False)
sketch5.addConstraint([
    Sketcher.Constraint("Coincident", 0, 2, 1, 1),
    Sketcher.Constraint("Coincident", 1, 2, 2, 1),
    Sketcher.Constraint("Coincident", 2, 2, 3, 1),
    Sketcher.Constraint("Coincident", 3, 2, 0, 1),
    Sketcher.Constraint("Horizontal", 0),
    Sketcher.Constraint("Vertical", 1),
    Sketcher.Constraint("Horizontal", 2),
    Sketcher.Constraint("Vertical", 3),
    Sketcher.Constraint("DistanceX", 0, 2, 0, 1, 170.0),
    Sketcher.Constraint("DistanceY", 1, 1, 1, 2, 5.0),
    Sketcher.Constraint("DistanceY", -1, 1, 0, 2, 5.0),
    Sketcher.Constraint("DistanceX", 0, 2, -1, 1, 42.5),
])
sketch5.setExpression("Constraints[8]", "Params.sketch5_width")
sketch5.setExpression("Constraints[9]", "Params.sketch5_height")
pad3 = body.newObject("PartDesign::Pad", "Pad002")
pad3.Profile = sketch5
pad3.setExpression("Length", "Params.pad3_length")

# Sketch on XY plane
sketch6 = body.newObject("Sketcher::SketchObject", "Sketch005")
sketch6.AttachmentSupport = (doc.getObject("XY_Plane"), [""])
sketch6.MapMode = "FlatFace"
sketch6.AttachmentOffset = App.Placement(App.Vector(0, 0, 14), App.Rotation())
sketch6.addGeometry([
    Part.LineSegment(App.Vector(-80, 128, 0), App.Vector(-80, -42, 0)),
    Part.LineSegment(App.Vector(-80, -42, 0), App.Vector(-70, -42, 0)),
    Part.LineSegment(App.Vector(-70, -42, 0), App.Vector(-70, 128, 0)),
    Part.LineSegment(App.Vector(-70, 128, 0), App.Vector(-80, 128, 0)),
], False)
sketch6.addConstraint([
    Sketcher.Constraint("Coincident", 0, 2, 1, 1),
    Sketcher.Constraint("Coincident", 1, 2, 2, 1),
    Sketcher.Constraint("Coincident", 2, 2, 3, 1),
    Sketcher.Constraint("Coincident", 3, 2, 0, 1),
    Sketcher.Constraint("Vertical", 0),
    Sketcher.Constraint("Horizontal", 1),
    Sketcher.Constraint("Vertical", 2),
    Sketcher.Constraint("Horizontal", 3),
    Sketcher.Constraint("DistanceX", 1, 1, 1, 2, 10.0),
    Sketcher.Constraint("DistanceY", 0, 2, 0, 1, 170.0),
    Sketcher.Constraint("DistanceX", 0, 2, -1, 1, 80.0),
    Sketcher.Constraint("DistanceY", 0, 2, -1, 1, 42.5),
])
sketch6.setExpression("Constraints[8]", "Params.sketch6_width")
sketch6.setExpression("Constraints[9]", "Params.sketch6_height")
pad4 = body.newObject("PartDesign::Pad", "Pad003")
pad4.Profile = sketch6
pad4.setExpression("Length", "Params.pad4_length")

# Sketch on XY plane
sketch7 = body.newObject("Sketcher::SketchObject", "Sketch006")
sketch7.AttachmentSupport = (doc.getObject("XY_Plane"), [""])
sketch7.MapMode = "FlatFace"
sketch7.AttachmentOffset = App.Placement(App.Vector(0, 0, 1), App.Rotation())
sketch7.addGeometry([
    Part.LineSegment(App.Vector(-70, 128, 0), App.Vector(-70, -42, 0)),
    Part.LineSegment(App.Vector(-70, -42, 0), App.Vector(-80, -42, 0)),
    Part.LineSegment(App.Vector(-80, -42, 0), App.Vector(-80, 128, 0)),
    Part.LineSegment(App.Vector(-80, 128, 0), App.Vector(-70, 128, 0)),
], False)
sketch7.addConstraint([
    Sketcher.Constraint("Coincident", 0, 2, 1, 1),
    Sketcher.Constraint("Coincident", 1, 2, 2, 1),
    Sketcher.Constraint("Coincident", 2, 2, 3, 1),
    Sketcher.Constraint("Coincident", 3, 2, 0, 1),
    Sketcher.Constraint("Vertical", 0),
    Sketcher.Constraint("Horizontal", 1),
    Sketcher.Constraint("Vertical", 2),
    Sketcher.Constraint("Horizontal", 3),
    Sketcher.Constraint("DistanceX", 1, 2, 1, 1, 10.0),
    Sketcher.Constraint("DistanceY", 0, 2, 0, 1, 170.0),
    Sketcher.Constraint("DistanceX", 0, 2, -1, 1, 70.0),
    Sketcher.Constraint("DistanceY", 0, 2, -1, 1, 42.5),
])
sketch7.setExpression("Constraints[8]", "Params.sketch7_width")
sketch7.setExpression("Constraints[9]", "Params.sketch7_height")
pad5 = body.newObject("PartDesign::Pad", "Pad004")
pad5.Profile = sketch7
pad5.setExpression("Length", "Params.pad5_length")
pad5.Reversed = True

# Sketch on XY plane
sketch8 = body.newObject("Sketcher::SketchObject", "Sketch007")
sketch8.AttachmentSupport = (doc.getObject("XY_Plane"), [""])
sketch8.MapMode = "FlatFace"
sketch8.AttachmentOffset = App.Placement(App.Vector(0, 0, 19), App.Rotation())
sketch8.addGeometry([
    Part.Circle(App.Vector(-75, 117.5, 0), App.Vector(0, 0, 1), 2.1),  # 0
    Part.Circle(App.Vector(-75, 97.5, 0), App.Vector(0, 0, 1), 2.1),  # 1
    Part.Circle(App.Vector(-75, 72.5, 0), App.Vector(0, 0, 1), 2.1),  # 2
    Part.Circle(App.Vector(-75, 52.5, 0), App.Vector(0, 0, 1), 2.1),  # 3
    Part.Circle(App.Vector(-75, 32.5, 0), App.Vector(0, 0, 1), 2.1),  # 4
    Part.Circle(App.Vector(-75, 12.5, 0), App.Vector(0, 0, 1), 2.1),  # 5
    Part.Circle(App.Vector(-75, -12.5, 0), App.Vector(0, 0, 1), 2.1),  # 6
    Part.Circle(App.Vector(-75, -32.5, 0), App.Vector(0, 0, 1), 2.1),  # 7
], False)
sketch8.addConstraint([
    Sketcher.Constraint("Equal", 0, 1),
    Sketcher.Constraint("Equal", 1, 2),
    Sketcher.Constraint("Equal", 2, 3),
    Sketcher.Constraint("Equal", 3, 4),
    Sketcher.Constraint("Equal", 4, 5),
    Sketcher.Constraint("Equal", 5, 6),
    Sketcher.Constraint("Equal", 6, 7),
    Sketcher.Constraint("Symmetric", 5, 3, 6, 3, -1),
    Sketcher.Constraint("Symmetric", 4, 3, 7, 3, -1),
    Sketcher.Constraint("Vertical", 0, 3, 1, 3),
    Sketcher.Constraint("Vertical", 1, 3, 2, 3),
    Sketcher.Constraint("Vertical", 2, 3, 3, 3),
    Sketcher.Constraint("Vertical", 3, 3, 4, 3),
    Sketcher.Constraint("Vertical", 4, 3, 5, 3),
    Sketcher.Constraint("Diameter", 0, 4.2),
    Sketcher.Constraint("DistanceX", 0, 3, -1, 1, 75.0),
    Sketcher.Constraint("DistanceY", 1, 3, 0, 3, 20.0),
    Sketcher.Constraint("DistanceY", 2, 3, 1, 3, 25.0),
    Sketcher.Constraint("DistanceY", 3, 3, 2, 3, 20.0),
    Sketcher.Constraint("DistanceY", 4, 3, 3, 3, 20.0),
    Sketcher.Constraint("DistanceY", 5, 3, 4, 3, 20.0),
    Sketcher.Constraint("DistanceY", 6, 3, 5, 3, 25.0),
])
sketch8.setExpression("Constraints[14]", "Params.sketch8_diameter")
pocket3 = body.newObject("PartDesign::Pocket", "Pocket002")
pocket3.Profile = sketch8
pocket3.setExpression("Length", "Params.pocket3_length")

# Sketch on XY plane
sketch9 = body.newObject("Sketcher::SketchObject", "Sketch008")
sketch9.AttachmentSupport = (doc.getObject("XY_Plane"), [""])
sketch9.MapMode = "FlatFace"
sketch9.AttachmentOffset = App.Placement(App.Vector(0, 0, -4), App.Rotation())
sketch9.addGeometry([
    Part.LineSegment(App.Vector(-80, 128, 0), App.Vector(-70, 128, 0)),
    Part.LineSegment(App.Vector(-70, 128, 0), App.Vector(-70, 108, 0)),
    Part.LineSegment(App.Vector(-70, 108, 0), App.Vector(-80, 108, 0)),
    Part.LineSegment(App.Vector(-80, 108, 0), App.Vector(-80, 128, 0)),
], False)
sketch9.addConstraint([
    Sketcher.Constraint("Coincident", 0, 2, 1, 1),
    Sketcher.Constraint("Coincident", 1, 2, 2, 1),
    Sketcher.Constraint("Coincident", 2, 2, 3, 1),
    Sketcher.Constraint("Coincident", 3, 2, 0, 1),
    Sketcher.Constraint("Horizontal", 0),
    Sketcher.Constraint("Vertical", 1),
    Sketcher.Constraint("Horizontal", 2),
    Sketcher.Constraint("Vertical", 3),
    Sketcher.Constraint("DistanceX", 0, 1, 0, 2, 10.0),
    Sketcher.Constraint("DistanceY", 1, 2, 1, 1, 20.0),
    Sketcher.Constraint("DistanceX", 0, 2, -1, 1, 70.0),
    Sketcher.Constraint("DistanceY", -1, 1, 0, 2, 127.5),
])
sketch9.setExpression("Constraints[8]", "Params.sketch9_width")
sketch9.setExpression("Constraints[9]", "Params.sketch9_height")
pocket4 = body.newObject("PartDesign::Pocket", "Pocket003")
pocket4.Profile = sketch9
pocket4.setExpression("Length", "Params.pocket4_length")
pocket4.Reversed = True

# Sketch on XY plane
sketch10 = body.newObject("Sketcher::SketchObject", "Sketch009")
sketch10.AttachmentSupport = (doc.getObject("XY_Plane"), [""])
sketch10.MapMode = "FlatFace"
sketch10.AttachmentOffset = App.Placement(App.Vector(0, 0, -4), App.Rotation())
sketch10.addGeometry([
    Part.LineSegment(App.Vector(-70, -40.5, 0), App.Vector(-70, -42.5, 0)),
    Part.LineSegment(App.Vector(-70, -42.5, 0), App.Vector(-80, -42.5, 0)),
    Part.LineSegment(App.Vector(-80, -42.5, 0), App.Vector(-80, -40.5, 0)),
    Part.LineSegment(App.Vector(-80, -40.5, 0), App.Vector(-70, -40.5, 0)),
], False)
sketch10.addConstraint([
    Sketcher.Constraint("Coincident", 0, 2, 1, 1),
    Sketcher.Constraint("Coincident", 1, 2, 2, 1),
    Sketcher.Constraint("Coincident", 2, 2, 3, 1),
    Sketcher.Constraint("Coincident", 3, 2, 0, 1),
    Sketcher.Constraint("Vertical", 0),
    Sketcher.Constraint("Horizontal", 1),
    Sketcher.Constraint("Vertical", 2),
    Sketcher.Constraint("Horizontal", 3),
    Sketcher.Constraint("DistanceX", 1, 2, 1, 1, 10.0),
    Sketcher.Constraint("DistanceY", 0, 2, 0, 1, 2.0),
    Sketcher.Constraint("DistanceX", 0, 2, -1, 1, 70.0),
    Sketcher.Constraint("DistanceY", 0, 2, -1, 1, 42.5),
])
sketch10.setExpression("Constraints[8]", "Params.sketch10_width")
sketch10.setExpression("Constraints[9]", "Params.sketch10_height")
pocket5 = body.newObject("PartDesign::Pocket", "Pocket004")
pocket5.Profile = sketch10
pocket5.setExpression("Length", "Params.pocket5_length")
pocket5.Reversed = True

doc.recompute()
